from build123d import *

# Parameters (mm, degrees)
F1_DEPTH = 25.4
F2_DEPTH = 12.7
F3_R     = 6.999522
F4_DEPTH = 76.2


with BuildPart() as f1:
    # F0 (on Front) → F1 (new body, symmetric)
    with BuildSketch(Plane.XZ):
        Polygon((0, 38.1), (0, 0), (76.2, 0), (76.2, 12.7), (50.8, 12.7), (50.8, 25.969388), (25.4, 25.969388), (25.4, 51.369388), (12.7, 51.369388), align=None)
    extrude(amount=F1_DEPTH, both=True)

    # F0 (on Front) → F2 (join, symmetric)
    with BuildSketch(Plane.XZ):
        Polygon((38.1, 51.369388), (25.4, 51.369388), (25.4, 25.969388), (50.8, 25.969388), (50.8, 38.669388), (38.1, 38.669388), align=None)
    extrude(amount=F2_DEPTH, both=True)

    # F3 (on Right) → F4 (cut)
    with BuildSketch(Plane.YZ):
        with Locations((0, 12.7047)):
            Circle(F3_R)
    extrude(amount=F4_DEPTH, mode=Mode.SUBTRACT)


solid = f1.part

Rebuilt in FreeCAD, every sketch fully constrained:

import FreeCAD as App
import Part
import Sketcher
from FreeCAD import Vector
Q = App.Units.Quantity

doc = App.newDocument("Part")
body = doc.addObject("PartDesign::Body", "Body")

# Sketch on XZ plane
sketch1 = body.newObject("Sketcher::SketchObject", "Sketch")
sketch1.AttachmentSupport = (doc.getObject("XZ_Plane"), [""])
sketch1.MapMode = "FlatFace"
sketch1.addGeometry([
    Part.LineSegment(Vector(0, 38.1, 0), Vector(0, 0, 0)),  # 0
    Part.LineSegment(Vector(0, 0, 0), Vector(76.2, 0, 0)),  # 1
    Part.LineSegment(Vector(76.2, 0, 0), Vector(76.2, 12.7, 0)),  # 2
    Part.LineSegment(Vector(76.2, 12.7, 0), Vector(50.8, 12.7, 0)),  # 3
    Part.LineSegment(Vector(50.8, 12.7, 0), Vector(50.8, 25.969388, 0)),  # 4
    Part.LineSegment(Vector(50.8, 25.969388, 0), Vector(25.4, 25.969388, 0)),  # 5
    Part.LineSegment(Vector(25.4, 25.969388, 0), Vector(25.4, 51.369388, 0)),  # 6
    Part.LineSegment(Vector(25.4, 51.369388, 0), Vector(12.7, 51.369388, 0)),  # 7
    Part.LineSegment(Vector(12.7, 51.369388, 0), Vector(0, 38.1, 0)),  # 8
], False)
sketch1.addConstraint([
    Sketcher.Constraint("Coincident", 0, 2, 1, 1),
    Sketcher.Constraint("Coincident", 1, 2, 2, 1),
    Sketcher.Constraint("Coincident", 2, 2, 3, 1),
    Sketcher.Constraint("Coincident", 3, 2, 4, 1),
    Sketcher.Constraint("Coincident", 4, 2, 5, 1),
    Sketcher.Constraint("Coincident", 5, 2, 6, 1),
    Sketcher.Constraint("Coincident", 6, 2, 7, 1),
    Sketcher.Constraint("Coincident", 7, 2, 8, 1),
    Sketcher.Constraint("Coincident", 8, 2, 0, 1),
    Sketcher.Constraint("Vertical", 0),
    Sketcher.Constraint("Horizontal", 1),
    Sketcher.Constraint("Vertical", 2),
    Sketcher.Constraint("Horizontal", 3),
    Sketcher.Constraint("Vertical", 4),
    Sketcher.Constraint("Horizontal", 5),
    Sketcher.Constraint("Vertical", 6),
    Sketcher.Constraint("Horizontal", 7),
    Sketcher.Constraint("Coincident", 0, 2, -1, 1),
    Sketcher.Constraint("Equal", 3, 5),
    Sketcher.Constraint("Equal", 7, 2),
    Sketcher.Constraint("Equal", 5, 6),
    Sketcher.Constraint("DistanceX", 1, 1, 1, 2, Q("3 in")),
    Sketcher.Constraint("DistanceX", 3, 2, 3, 1, Q("1 in")),
    Sketcher.Constraint("DistanceX", 7, 2, 7, 1, Q("0.5 in")),
    Sketcher.Constraint("DistanceY", 0, 2, 0, 1, Q("1.5 in")),
    Sketcher.Constraint("DistanceY", 4, 1, 4, 2, 13.269388),
])
pad1 = body.newObject("PartDesign::Pad", "Pad")
pad1.Profile = sketch1
pad1.Length = Q("2 in")
pad1.Midplane = True

# Sketch on XZ plane
sketch2 = body.newObject("Sketcher::SketchObject", "Sketch001")
sketch2.AttachmentSupport = (doc.getObject("XZ_Plane"), [""])
sketch2.MapMode = "FlatFace"
sketch2.addGeometry([
    Part.LineSegment(Vector(38.1, 51.369388, 0), Vector(25.4, 51.369388, 0)),  # 0
    Part.LineSegment(Vector(25.4, 51.369388, 0), Vector(25.4, 25.969388, 0)),  # 1
    Part.LineSegment(Vector(25.4, 25.969388, 0), Vector(50.8, 25.969388, 0)),  # 2
    Part.LineSegment(Vector(50.8, 25.969388, 0), Vector(50.8, 38.669388, 0)),  # 3
    Part.LineSegment(Vector(50.8, 38.669388, 0), Vector(38.1, 38.669388, 0)),  # 4
    Part.LineSegment(Vector(38.1, 38.669388, 0), Vector(38.1, 51.369388, 0)),  # 5
], False)
sketch2.addConstraint([
    Sketcher.Constraint("Coincident", 0, 2, 1, 1),
    Sketcher.Constraint("Coincident", 1, 2, 2, 1),
    Sketcher.Constraint("Coincident", 2, 2, 3, 1),
    Sketcher.Constraint("Coincident", 3, 2, 4, 1),
    Sketcher.Constraint("Coincident", 4, 2, 5, 1),
    Sketcher.Constraint("Coincident", 5, 2, 0, 1),
    Sketcher.Constraint("Horizontal", 0),
    Sketcher.Constraint("Vertical", 1),
    Sketcher.Constraint("Horizontal", 2),
    Sketcher.Constraint("Vertical", 3),
    Sketcher.Constraint("Horizontal", 4),
    Sketcher.Constraint("Vertical", 5),
    Sketcher.Constraint("Equal", 0, 4),
    Sketcher.Constraint("Equal", 2, 1),
    Sketcher.Constraint("Equal", 4, 3),
    Sketcher.Constraint("DistanceX", 2, 1, 2, 2, Q("1 in")),
    Sketcher.Constraint("DistanceX", -1, 1, 0, 2, Q("1 in")),
    Sketcher.Constraint("DistanceY", -1, 1, 0, 2, 51.369388),
])
pad2 = body.newObject("PartDesign::Pad", "Pad001")
pad2.Profile = sketch2
pad2.Length = Q("1 in")
pad2.Midplane = True

# Sketch on YZ plane
sketch3 = body.newObject("Sketcher::SketchObject", "Sketch002")
sketch3.AttachmentSupport = (doc.getObject("YZ_Plane"), [""])
sketch3.MapMode = "FlatFace"
sketch3.addGeometry(Part.Circle(Vector(0, 12.7047, 0), Vector(0, 0, 1), 6.999522), False)
sketch3.addConstraint([
    Sketcher.Constraint("PointOnObject", 0, 3, -2),
    Sketcher.Constraint("Diameter", 0, 13.999044),
    Sketcher.Constraint("DistanceY", -1, 1, 0, 3, 12.7047),
])
pocket1 = body.newObject("PartDesign::Pocket", "Pocket")
pocket1.Profile = sketch3
pocket1.Length = Q("3 in")
pocket1.Reversed = True

doc.recompute()
